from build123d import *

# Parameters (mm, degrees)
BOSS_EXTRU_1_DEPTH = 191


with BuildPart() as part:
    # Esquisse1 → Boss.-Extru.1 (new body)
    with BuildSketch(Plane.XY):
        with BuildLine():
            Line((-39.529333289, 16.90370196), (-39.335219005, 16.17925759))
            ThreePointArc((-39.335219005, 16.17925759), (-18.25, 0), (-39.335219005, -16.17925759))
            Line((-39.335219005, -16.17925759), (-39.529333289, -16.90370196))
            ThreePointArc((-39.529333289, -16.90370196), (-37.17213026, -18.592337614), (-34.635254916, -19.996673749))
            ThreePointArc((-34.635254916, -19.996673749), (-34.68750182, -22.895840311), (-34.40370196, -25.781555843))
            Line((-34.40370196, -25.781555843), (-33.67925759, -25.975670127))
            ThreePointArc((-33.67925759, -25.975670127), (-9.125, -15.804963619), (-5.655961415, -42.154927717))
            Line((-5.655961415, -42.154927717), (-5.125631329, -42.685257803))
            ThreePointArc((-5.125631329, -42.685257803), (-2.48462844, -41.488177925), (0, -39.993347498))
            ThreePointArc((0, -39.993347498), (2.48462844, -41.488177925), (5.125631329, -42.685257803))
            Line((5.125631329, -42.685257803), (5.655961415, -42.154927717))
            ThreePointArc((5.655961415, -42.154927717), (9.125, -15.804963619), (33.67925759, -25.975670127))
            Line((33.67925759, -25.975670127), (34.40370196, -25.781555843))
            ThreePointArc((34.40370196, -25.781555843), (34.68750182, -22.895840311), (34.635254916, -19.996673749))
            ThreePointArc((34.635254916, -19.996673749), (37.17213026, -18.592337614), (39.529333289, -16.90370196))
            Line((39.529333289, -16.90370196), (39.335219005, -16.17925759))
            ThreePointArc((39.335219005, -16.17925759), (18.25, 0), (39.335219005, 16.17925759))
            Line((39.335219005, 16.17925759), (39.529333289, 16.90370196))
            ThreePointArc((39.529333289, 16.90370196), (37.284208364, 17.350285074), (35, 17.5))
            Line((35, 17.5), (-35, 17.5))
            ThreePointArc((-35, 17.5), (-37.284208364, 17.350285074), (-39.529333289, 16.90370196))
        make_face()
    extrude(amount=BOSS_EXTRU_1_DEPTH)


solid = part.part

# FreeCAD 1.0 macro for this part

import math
import FreeCAD as App
import Part
import Sketcher

V = App.Vector
Q = App.Units.Quantity

doc = App.newDocument("Part")
body = doc.addObject("PartDesign::Body", "Body")

# Sketch on XY plane
sketch1 = body.newObject("Sketcher::SketchObject", "Sketch")
sketch1.AttachmentSupport = (doc.getObject("XY_Plane"), [""])
sketch1.MapMode = "FlatFace"
sketch1.addGeometry(Part.LineSegment(V(-39.5, 16.9, 0), V(-39.3, 16.2, 0)), False)
sketch1.addGeometry(Part.ArcOfCircle(Part.Circle(V(-35, 0, 0), V(0, 0, 1), 16.8), math.radians(-105), math.radians(105)), False)
sketch1.addGeometry(Part.LineSegment(V(-39.3, -16.2, 0), V(-39.5, -16.9, 0)), False)
sketch1.addGeometry(Part.ArcOfCircle(Part.Circle(V(-23.8, 2.5, 0), V(0, 0, 1), 25), math.radians(-128.94), math.radians(-115.64)), False)
sketch1.addGeometry(Part.ArcOfCircle(Part.Circle(V(-9.7, -21.9, 0), V(0, 0, 1), 25), math.radians(175.64), math.radians(188.94)), False)
sketch1.addGeometry(Part.LineSegment(V(-34.4, -25.8, 0), V(-33.7, -26, 0)), False)
sketch1.addGeometry(Part.ArcOfCircle(Part.Circle(V(-17.5, -30.3, 0), V(0, 0, 1), 16.8), math.radians(-45), math.radians(165)), False)
sketch1.addGeometry(Part.LineSegment(V(-5.7, -42.2, 0), V(-5.1, -42.7, 0)), False)
sketch1.addGeometry(Part.ArcOfCircle(Part.Circle(V(-14.1, -19.4, 0), V(0, 0, 1), 25), math.radians(-68.94), math.radians(-55.64)), False)
sketch1.addGeometry(Part.ArcOfCircle(Part.Circle(V(14.1, -19.4, 0), V(0, 0, 1), 25), math.radians(-124.36), math.radians(-111.06)), False)
sketch1.addGeometry(Part.LineSegment(V(5.1, -42.7, 0), V(5.7, -42.2, 0)), False)
sketch1.addGeometry(Part.ArcOfCircle(Part.Circle(V(17.5, -30.3, 0), V(0, 0, 1), 16.8), math.radians(15), math.radians(225)), False)
sketch1.addGeometry(Part.LineSegment(V(33.7, -26, 0), V(34.4, -25.8, 0)), False)
sketch1.addGeometry(Part.ArcOfCircle(Part.Circle(V(9.7, -21.9, 0), V(0, 0, 1), 25), math.radians(-8.94), math.radians(4.36)), False)
sketch1.addGeometry(Part.ArcOfCircle(Part.Circle(V(23.8, 2.5, 0), V(0, 0, 1), 25), math.radians(-64.36), math.radians(-51.06)), False)
sketch1.addGeometry(Part.LineSegment(V(39.5, -16.9, 0), V(39.3, -16.2, 0)), False)
sketch1.addGeometry(Part.ArcOfCircle(Part.Circle(V(35, 0, 0), V(0, 0, 1), 16.8), math.radians(75), math.radians(285)), False)
sketch1.addGeometry(Part.LineSegment(V(39.3, 16.2, 0), V(39.5, 16.9, 0)), False)
sketch1.addGeometry(Part.ArcOfCircle(Part.Circle(V(35, 0, 0), V(0, 0, 1), 17.5), math.radians(75), math.radians(90)), False)
sketch1.addGeometry(Part.LineSegment(V(35, 17.5, 0), V(-35, 17.5, 0)), False)
sketch1.addGeometry(Part.ArcOfCircle(Part.Circle(V(-35, 0, 0), V(0, 0, 1), 17.5), math.radians(90), math.radians(105)), False)
sketch1.addConstraint(Sketcher.Constraint("Coincident", 0, 2, 1, 2))
sketch1.addConstraint(Sketcher.Constraint("Coincident", 1, 1, 2, 1))
sketch1.addConstraint(Sketcher.Constraint("Coincident", 2, 2, 3, 1))
sketch1.addConstraint(Sketcher.Constraint("Coincident", 3, 2, 4, 1))
sketch1.addConstraint(Sketcher.Constraint("Coincident", 4, 2, 5, 1))
sketch1.addConstraint(Sketcher.Constraint("Coincident", 5, 2, 6, 2))
sketch1.addConstraint(Sketcher.Constraint("Coincident", 6, 1, 7, 1))
sketch1.addConstraint(Sketcher.Constraint("Coincident", 7, 2, 8, 1))
sketch1.addConstraint(Sketcher.Constraint("Coincident", 8, 2, 9, 1))
sketch1.addConstraint(Sketcher.Constraint("Coincident", 9, 2, 10, 1))
sketch1.addConstraint(Sketcher.Constraint("Coincident", 10, 2, 11, 2))
sketch1.addConstraint(Sketcher.Constraint("Coincident", 11, 1, 12, 1))
sketch1.addConstraint(Sketcher.Constraint("Coincident", 12, 2, 13, 1))
sketch1.addConstraint(Sketcher.Constraint("Coincident", 13, 2, 14, 1))
sketch1.addConstraint(Sketcher.Constraint("Coincident", 14, 2, 15, 1))
sketch1.addConstraint(Sketcher.Constraint("Coincident", 15, 2, 16, 2))
sketch1.addConstraint(Sketcher.Constraint("Coincident", 16, 1, 17, 1))
sketch1.addConstraint(Sketcher.Constraint("Coincident", 17, 2, 18, 1))
sketch1.addConstraint(Sketcher.Constraint("Tangent", 18, 2, 19, 1))
sketch1.addConstraint(Sketcher.Constraint("Tangent", 19, 2, 20, 1))
sketch1.addConstraint(Sketcher.Constraint("Coincident", 20, 2, 0, 1))
sketch1.addConstraint(Sketcher.Constraint("Horizontal", 19))
sketch1.addConstraint(Sketcher.Constraint("Coincident", 18, 3, 16, 3))
sketch1.addConstraint(Sketcher.Constraint("Coincident", 20, 3, 1, 3))
sketch1.addConstraint(Sketcher.Constraint("Equal", 3, 4))
sketch1.addConstraint(Sketcher.Constraint("Equal", 1, 6))
sketch1.addConstraint(Sketcher.Constraint("Equal", 4, 8))
sketch1.addConstraint(Sketcher.Constraint("Equal", 8, 9))
sketch1.addConstraint(Sketcher.Constraint("Equal", 6, 11))
sketch1.addConstraint(Sketcher.Constraint("Equal", 9, 13))
sketch1.addConstraint(Sketcher.Constraint("Equal", 13, 14))
sketch1.addConstraint(Sketcher.Constraint("Equal", 11, 16))
sketch1.addConstraint(Sketcher.Constraint("Equal", 18, 20))
sketch1.addConstraint(Sketcher.Constraint("Symmetric", 1, 3, 16, 3, -1, 1))
sketch1.addConstraint(Sketcher.Constraint("Symmetric", 2, 2, 17, 2, -1, 1))
sketch1.addConstraint(Sketcher.Constraint("Symmetric", 14, 2, 20, 2, -1, 1))
sketch1.addConstraint(Sketcher.Constraint("Symmetric", 8, 3, 9, 3, -2))
sketch1.addConstraint(Sketcher.Constraint("Symmetric", 6, 3, 11, 3, -2))
sketch1.addConstraint(Sketcher.Constraint("Symmetric", 4, 3, 13, 3, -2))
sketch1.addConstraint(Sketcher.Constraint("Symmetric", 3, 3, 14, 3, -2))
sketch1.addConstraint(Sketcher.Constraint("Perpendicular", 2, 5))
sketch1.addConstraint(Sketcher.Constraint("Perpendicular", 7, 10))
sketch1.addConstraint(Sketcher.Constraint("Perpendicular", 0, 12))
sketch1.addConstraint(Sketcher.Constraint("Perpendicular", 12, 15))
sketch1.addConstraint(Sketcher.Constraint("Perpendicular", 5, 17))
sketch1.addConstraint(Sketcher.Constraint("Horizontal", 7, 2, 9, 2))
sketch1.addConstraint(Sketcher.Constraint("Horizontal", 6, 1, 10, 2))
sketch1.addConstraint(Sketcher.Constraint("Horizontal", 5, 2, 11, 1))
sketch1.addConstraint(Sketcher.Constraint("Horizontal", 4, 2, 12, 2))
sketch1.addConstraint(Sketcher.Constraint("Equal", 2, 5))
sketch1.addConstraint(Sketcher.Constraint("Equal", 5, 7))
sketch1.addConstraint(Sketcher.Constraint("Radius", 3, 25.0))
sketch1.addConstraint(Sketcher.Constraint("Radius", 18, 17.5))
sketch1.addConstraint(Sketcher.Constraint("DistanceX", 19, 2, 19, 1, 70.0))
sketch1.addConstraint(Sketcher.Constraint("Angle", 0, Q("-75 deg")))
sketch1.addConstraint(Sketcher.Constraint("Radius", 1, 16.75))
sketch1.addConstraint(Sketcher.Constraint("DistanceX", 6, 3, 11, 3, 35.0))
sketch1.addConstraint(Sketcher.Constraint("DistanceY", 6, 1, 8, 3, 22.800002))
sketch1.addConstraint(Sketcher.Constraint("DistanceY", 2, 2, -1, 1, 16.903702))
sketch1.addConstraint(Sketcher.Constraint("DistanceX", 4, 2, -1, 1, 34.403702))
sketch1.addConstraint(Sketcher.Constraint("DistanceX", 8, 3, 4, 3, 4.4012))
sketch1.addConstraint(Sketcher.Constraint("DistanceY", 4, 2, 1, 1, 9.602298))
sketch1.addConstraint(Sketcher.Constraint("DistanceY", 7, 2, 4, 3, 20.789298))
sketch1.addConstraint(Sketcher.Constraint("DistanceX", 3, 3, -1, 1, 23.81621))
pad1 = body.newObject("PartDesign::Pad", "Pad")
pad1.Profile = sketch1
pad1.Length = 191

doc.recompute()
